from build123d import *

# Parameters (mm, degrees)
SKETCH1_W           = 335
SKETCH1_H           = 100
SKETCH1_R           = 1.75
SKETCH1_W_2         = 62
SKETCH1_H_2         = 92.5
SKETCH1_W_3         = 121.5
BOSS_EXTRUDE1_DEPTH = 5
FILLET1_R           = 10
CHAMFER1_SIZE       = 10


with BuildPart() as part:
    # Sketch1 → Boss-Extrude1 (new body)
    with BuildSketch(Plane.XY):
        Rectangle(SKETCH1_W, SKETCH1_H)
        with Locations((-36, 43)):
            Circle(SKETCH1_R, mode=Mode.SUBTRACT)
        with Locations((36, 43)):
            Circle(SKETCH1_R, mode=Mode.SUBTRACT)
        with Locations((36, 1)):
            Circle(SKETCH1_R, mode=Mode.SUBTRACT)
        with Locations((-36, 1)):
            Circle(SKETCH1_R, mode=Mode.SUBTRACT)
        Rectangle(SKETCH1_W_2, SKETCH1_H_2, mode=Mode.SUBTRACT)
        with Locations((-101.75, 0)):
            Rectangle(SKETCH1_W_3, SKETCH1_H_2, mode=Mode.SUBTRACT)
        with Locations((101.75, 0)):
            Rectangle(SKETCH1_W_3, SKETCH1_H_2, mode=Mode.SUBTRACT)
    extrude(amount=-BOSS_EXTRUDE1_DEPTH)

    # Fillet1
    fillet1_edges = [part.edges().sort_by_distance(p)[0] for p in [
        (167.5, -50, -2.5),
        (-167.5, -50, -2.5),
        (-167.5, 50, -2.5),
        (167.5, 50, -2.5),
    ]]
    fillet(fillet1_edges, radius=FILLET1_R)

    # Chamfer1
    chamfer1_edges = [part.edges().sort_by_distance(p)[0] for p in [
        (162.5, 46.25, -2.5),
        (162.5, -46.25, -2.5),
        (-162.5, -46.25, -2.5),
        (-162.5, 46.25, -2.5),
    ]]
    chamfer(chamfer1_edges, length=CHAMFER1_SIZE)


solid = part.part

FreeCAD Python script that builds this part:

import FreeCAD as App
import Part
import Sketcher
Q = App.Units.Quantity


def edges_at(feature, points):
    """Names of the edges that pass closest to the given points."""
    edges = feature.Shape.Edges
    near = lambda p: min(range(len(edges)), key=lambda i: edges[i].distToShape(Part.Vertex(*p))[0])
    return sorted({f"Edge{near(p) + 1}" for p in points})

doc = App.newDocument("Part")
params = doc.addObject("Spreadsheet::Sheet", "Params")
for row, (alias, value) in enumerate([
    ("sketch1_diameter", "3.5 mm"),
    ("sketch1_width", "335 mm"),
    ("sketch1_width2", "62 mm"),
    ("sketch1_height", "100 mm"),
    ("sketch1_width3", "121.5 mm"),
    ("pad1_length", "5 mm"),
    ("fillet_radius", "10 mm"),
    ("chamfer_size", "10 mm"),
], start=1):
    params.set(f"A{row}", alias)
    params.set(f"B{row}", "=" + value)
    params.setAlias(f"B{row}", alias)

body = doc.addObject("PartDesign::Body", "Body")

# Sketch on XY plane
sketch1 = doc.addObject("Sketcher::SketchObject", "Sketch")
body.addObject(sketch1)
sketch1.AttachmentSupport = (doc.XY_Plane, [""])
sketch1.MapMode = "FlatFace"
sketch1.addGeometry(Part.LineSegment(App.Vector(-167.5, 50, 0), App.Vector(-167.5, -50, 0)), False)
sketch1.addGeometry(Part.LineSegment(App.Vector(-167.5, -50, 0), App.Vector(167.5, -50, 0)), False)
sketch1.addGeometry(Part.LineSegment(App.Vector(167.5, -50, 0), App.Vector(167.5, 50, 0)), False)
sketch1.addGeometry(Part.LineSegment(App.Vector(167.5, 50, 0), App.Vector(-167.5, 50, 0)), False)
sketch1.addGeometry(Part.LineSegment(App.Vector(-41, -46.2, 0), App.Vector(-162.5, -46.2, 0)), False)
sketch1.addGeometry(Part.LineSegment(App.Vector(-162.5, -46.2, 0), App.Vector(-162.5, 46.2, 0)), False)
sketch1.addGeometry(Part.LineSegment(App.Vector(-162.5, 46.2, 0), App.Vector(-41, 46.2, 0)), False)
sketch1.addGeometry(Part.LineSegment(App.Vector(-41, 46.2, 0), App.Vector(-41, -46.2, 0)), False)
sketch1.addGeometry(Part.Circle(App.Vector(-36, 1, 0), App.Vector(0, 0, 1), 1.8), False)
sketch1.addGeometry(Part.Circle(App.Vector(-36, 43, 0), App.Vector(0, 0, 1), 1.8), False)
sketch1.addGeometry(Part.LineSegment(App.Vector(31, -46.2, 0), App.Vector(-31, -46.2, 0)), False)
sketch1.addGeometry(Part.LineSegment(App.Vector(-31, -46.2, 0), App.Vector(-31, 46.2, 0)), False)
sketch1.addGeometry(Part.LineSegment(App.Vector(-31, 46.2, 0), App.Vector(31, 46.2, 0)), False)
sketch1.addGeometry(Part.LineSegment(App.Vector(31, 46.2, 0), App.Vector(31, -46.2, 0)), False)
sketch1.addGeometry(Part.Circle(App.Vector(36, 1, 0), App.Vector(0, 0, 1), 1.8), False)
sketch1.addGeometry(Part.LineSegment(App.Vector(162.5, -46.2, 0), App.Vector(41, -46.2, 0)), False)
sketch1.addGeometry(Part.LineSegment(App.Vector(41, -46.2, 0), App.Vector(41, 46.2, 0)), False)
sketch1.addGeometry(Part.LineSegment(App.Vector(41, 46.2, 0), App.Vector(162.5, 46.2, 0)), False)
sketch1.addGeometry(Part.LineSegment(App.Vector(162.5, 46.2, 0), App.Vector(162.5, -46.2, 0)), False)
sketch1.addGeometry(Part.Circle(App.Vector(36, 43, 0), App.Vector(0, 0, 1), 1.8), False)
sketch1.addConstraint(Sketcher.Constraint("Coincident", 0, 2, 1, 1))
sketch1.addConstraint(Sketcher.Constraint("Coincident", 1, 2, 2, 1))
sketch1.addConstraint(Sketcher.Constraint("Coincident", 2, 2, 3, 1))
sketch1.addConstraint(Sketcher.Constraint("Coincident", 3, 2, 0, 1))
sketch1.addConstraint(Sketcher.Constraint("Coincident", 4, 2, 5, 1))
sketch1.addConstraint(Sketcher.Constraint("Coincident", 5, 2, 6, 1))
sketch1.addConstraint(Sketcher.Constraint("Coincident", 6, 2, 7, 1))
sketch1.addConstraint(Sketcher.Constraint("Coincident", 7, 2, 4, 1))
sketch1.addConstraint(Sketcher.Constraint("Coincident", 10, 2, 11, 1))
sketch1.addConstraint(Sketcher.Constraint("Coincident", 11, 2, 12, 1))
sketch1.addConstraint(Sketcher.Constraint("Coincident", 12, 2, 13, 1))
sketch1.addConstraint(Sketcher.Constraint("Coincident", 13, 2, 10, 1))
sketch1.addConstraint(Sketcher.Constraint("Coincident", 15, 2, 16, 1))
sketch1.addConstraint(Sketcher.Constraint("Coincident", 16, 2, 17, 1))
sketch1.addConstraint(Sketcher.Constraint("Coincident", 17, 2, 18, 1))
sketch1.addConstraint(Sketcher.Constraint("Coincident", 18, 2, 15, 1))
sketch1.addConstraint(Sketcher.Constraint("Vertical", 0))
sketch1.addConstraint(Sketcher.Constraint("Horizontal", 1))
sketch1.addConstraint(Sketcher.Constraint("Vertical", 2))
sketch1.addConstraint(Sketcher.Constraint("Horizontal", 3))
sketch1.addConstraint(Sketcher.Constraint("Horizontal", 4))
sketch1.addConstraint(Sketcher.Constraint("Vertical", 5))
sketch1.addConstraint(Sketcher.Constraint("Horizontal", 6))
sketch1.addConstraint(Sketcher.Constraint("Vertical", 7))
sketch1.addConstraint(Sketcher.Constraint("Horizontal", 10))
sketch1.addConstraint(Sketcher.Constraint("Vertical", 11))
sketch1.addConstraint(Sketcher.Constraint("Horizontal", 12))
sketch1.addConstraint(Sketcher.Constraint("Vertical", 13))
sketch1.addConstraint(Sketcher.Constraint("Horizontal", 15))
sketch1.addConstraint(Sketcher.Constraint("Vertical", 16))
sketch1.addConstraint(Sketcher.Constraint("Horizontal", 17))
sketch1.addConstraint(Sketcher.Constraint("Vertical", 18))
sketch1.addConstraint(Sketcher.Constraint("Equal", 8, 9))
sketch1.addConstraint(Sketcher.Constraint("Equal", 9, 14))
sketch1.addConstraint(Sketcher.Constraint("Equal", 14, 19))
sketch1.addConstraint(Sketcher.Constraint("Symmetric", 0, 2, 2, 2, -1, 1))
sketch1.addConstraint(Sketcher.Constraint("Symmetric", 10, 2, 12, 2, -1, 1))
sketch1.addConstraint(Sketcher.Constraint("Symmetric", 6, 2, 15, 2, -1, 1))
sketch1.addConstraint(Sketcher.Constraint("Symmetric", 4, 2, 17, 2, -1, 1))
sketch1.addConstraint(Sketcher.Constraint("Symmetric", 8, 3, 14, 3, -2))
sketch1.addConstraint(Sketcher.Constraint("Symmetric", 9, 3, 19, 3, -2))
sketch1.addConstraint(Sketcher.Constraint("Horizontal", 7, 2, 10, 2))
sketch1.addConstraint(Sketcher.Constraint("Horizontal", 6, 2, 11, 2))
sketch1.addConstraint(Sketcher.Constraint("Vertical", 8, 3, 9, 3))
sketch1.addConstraint(Sketcher.Constraint("Diameter", 8, Q("3.5 mm")))
sketch1.addConstraint(Sketcher.Constraint("DistanceX", 1, 1, 1, 2, Q("335 mm")))
sketch1.addConstraint(Sketcher.Constraint("DistanceX", 10, 2, 10, 1, Q("62 mm")))
sketch1.addConstraint(Sketcher.Constraint("DistanceY", 0, 2, 0, 1, Q("100 mm")))
sketch1.addConstraint(Sketcher.Constraint("DistanceX", 4, 2, 4, 1, Q("121.5 mm")))
sketch1.addConstraint(Sketcher.Constraint("DistanceY", 5, 1, 5, 2, Q("92.5 mm")))
sketch1.addConstraint(Sketcher.Constraint("DistanceX", 8, 3, -1, 1, Q("36 mm")))
sketch1.addConstraint(Sketcher.Constraint("DistanceY", -1, 1, 8, 3, Q("1 mm")))
sketch1.addConstraint(Sketcher.Constraint("DistanceY", -1, 1, 9, 3, Q("43 mm")))
sketch1.addConstraint(Sketcher.Constraint("DistanceX", 6, 2, -1, 1, Q("41 mm")))
sketch1.setExpression("Constraints[44]", "Params.sketch1_diameter")
sketch1.setExpression("Constraints[45]", "Params.sketch1_width")
sketch1.setExpression("Constraints[46]", "Params.sketch1_width2")
sketch1.setExpression("Constraints[47]", "Params.sketch1_height")
sketch1.setExpression("Constraints[48]", "Params.sketch1_width3")
pad1 = doc.addObject("PartDesign::Pad", "Pad")
body.addObject(pad1)
pad1.Profile = sketch1
pad1.setExpression("Length", "Params.pad1_length")
pad1.Reversed = True
doc.recompute()

fillet = doc.addObject("PartDesign::Fillet", "Fillet")
body.addObject(fillet)
fillet.Base = (pad1, edges_at(pad1, [
    (167.5, -50, -2.5),
    (-167.5, -50, -2.5),
    (-167.5, 50, -2.5),
    (167.5, 50, -2.5),
]))
fillet.setExpression("Radius", "Params.fillet_radius")
doc.recompute()

chamfer = doc.addObject("PartDesign::Chamfer", "Chamfer")
body.addObject(chamfer)
chamfer.Base = (fillet, edges_at(fillet, [
    (162.5, 46.25, -2.5),
    (162.5, -46.25, -2.5),
    (-162.5, -46.25, -2.5),
    (-162.5, 46.25, -2.5),
]))
chamfer.setExpression("Size", "Params.chamfer_size")

doc.recompute()
